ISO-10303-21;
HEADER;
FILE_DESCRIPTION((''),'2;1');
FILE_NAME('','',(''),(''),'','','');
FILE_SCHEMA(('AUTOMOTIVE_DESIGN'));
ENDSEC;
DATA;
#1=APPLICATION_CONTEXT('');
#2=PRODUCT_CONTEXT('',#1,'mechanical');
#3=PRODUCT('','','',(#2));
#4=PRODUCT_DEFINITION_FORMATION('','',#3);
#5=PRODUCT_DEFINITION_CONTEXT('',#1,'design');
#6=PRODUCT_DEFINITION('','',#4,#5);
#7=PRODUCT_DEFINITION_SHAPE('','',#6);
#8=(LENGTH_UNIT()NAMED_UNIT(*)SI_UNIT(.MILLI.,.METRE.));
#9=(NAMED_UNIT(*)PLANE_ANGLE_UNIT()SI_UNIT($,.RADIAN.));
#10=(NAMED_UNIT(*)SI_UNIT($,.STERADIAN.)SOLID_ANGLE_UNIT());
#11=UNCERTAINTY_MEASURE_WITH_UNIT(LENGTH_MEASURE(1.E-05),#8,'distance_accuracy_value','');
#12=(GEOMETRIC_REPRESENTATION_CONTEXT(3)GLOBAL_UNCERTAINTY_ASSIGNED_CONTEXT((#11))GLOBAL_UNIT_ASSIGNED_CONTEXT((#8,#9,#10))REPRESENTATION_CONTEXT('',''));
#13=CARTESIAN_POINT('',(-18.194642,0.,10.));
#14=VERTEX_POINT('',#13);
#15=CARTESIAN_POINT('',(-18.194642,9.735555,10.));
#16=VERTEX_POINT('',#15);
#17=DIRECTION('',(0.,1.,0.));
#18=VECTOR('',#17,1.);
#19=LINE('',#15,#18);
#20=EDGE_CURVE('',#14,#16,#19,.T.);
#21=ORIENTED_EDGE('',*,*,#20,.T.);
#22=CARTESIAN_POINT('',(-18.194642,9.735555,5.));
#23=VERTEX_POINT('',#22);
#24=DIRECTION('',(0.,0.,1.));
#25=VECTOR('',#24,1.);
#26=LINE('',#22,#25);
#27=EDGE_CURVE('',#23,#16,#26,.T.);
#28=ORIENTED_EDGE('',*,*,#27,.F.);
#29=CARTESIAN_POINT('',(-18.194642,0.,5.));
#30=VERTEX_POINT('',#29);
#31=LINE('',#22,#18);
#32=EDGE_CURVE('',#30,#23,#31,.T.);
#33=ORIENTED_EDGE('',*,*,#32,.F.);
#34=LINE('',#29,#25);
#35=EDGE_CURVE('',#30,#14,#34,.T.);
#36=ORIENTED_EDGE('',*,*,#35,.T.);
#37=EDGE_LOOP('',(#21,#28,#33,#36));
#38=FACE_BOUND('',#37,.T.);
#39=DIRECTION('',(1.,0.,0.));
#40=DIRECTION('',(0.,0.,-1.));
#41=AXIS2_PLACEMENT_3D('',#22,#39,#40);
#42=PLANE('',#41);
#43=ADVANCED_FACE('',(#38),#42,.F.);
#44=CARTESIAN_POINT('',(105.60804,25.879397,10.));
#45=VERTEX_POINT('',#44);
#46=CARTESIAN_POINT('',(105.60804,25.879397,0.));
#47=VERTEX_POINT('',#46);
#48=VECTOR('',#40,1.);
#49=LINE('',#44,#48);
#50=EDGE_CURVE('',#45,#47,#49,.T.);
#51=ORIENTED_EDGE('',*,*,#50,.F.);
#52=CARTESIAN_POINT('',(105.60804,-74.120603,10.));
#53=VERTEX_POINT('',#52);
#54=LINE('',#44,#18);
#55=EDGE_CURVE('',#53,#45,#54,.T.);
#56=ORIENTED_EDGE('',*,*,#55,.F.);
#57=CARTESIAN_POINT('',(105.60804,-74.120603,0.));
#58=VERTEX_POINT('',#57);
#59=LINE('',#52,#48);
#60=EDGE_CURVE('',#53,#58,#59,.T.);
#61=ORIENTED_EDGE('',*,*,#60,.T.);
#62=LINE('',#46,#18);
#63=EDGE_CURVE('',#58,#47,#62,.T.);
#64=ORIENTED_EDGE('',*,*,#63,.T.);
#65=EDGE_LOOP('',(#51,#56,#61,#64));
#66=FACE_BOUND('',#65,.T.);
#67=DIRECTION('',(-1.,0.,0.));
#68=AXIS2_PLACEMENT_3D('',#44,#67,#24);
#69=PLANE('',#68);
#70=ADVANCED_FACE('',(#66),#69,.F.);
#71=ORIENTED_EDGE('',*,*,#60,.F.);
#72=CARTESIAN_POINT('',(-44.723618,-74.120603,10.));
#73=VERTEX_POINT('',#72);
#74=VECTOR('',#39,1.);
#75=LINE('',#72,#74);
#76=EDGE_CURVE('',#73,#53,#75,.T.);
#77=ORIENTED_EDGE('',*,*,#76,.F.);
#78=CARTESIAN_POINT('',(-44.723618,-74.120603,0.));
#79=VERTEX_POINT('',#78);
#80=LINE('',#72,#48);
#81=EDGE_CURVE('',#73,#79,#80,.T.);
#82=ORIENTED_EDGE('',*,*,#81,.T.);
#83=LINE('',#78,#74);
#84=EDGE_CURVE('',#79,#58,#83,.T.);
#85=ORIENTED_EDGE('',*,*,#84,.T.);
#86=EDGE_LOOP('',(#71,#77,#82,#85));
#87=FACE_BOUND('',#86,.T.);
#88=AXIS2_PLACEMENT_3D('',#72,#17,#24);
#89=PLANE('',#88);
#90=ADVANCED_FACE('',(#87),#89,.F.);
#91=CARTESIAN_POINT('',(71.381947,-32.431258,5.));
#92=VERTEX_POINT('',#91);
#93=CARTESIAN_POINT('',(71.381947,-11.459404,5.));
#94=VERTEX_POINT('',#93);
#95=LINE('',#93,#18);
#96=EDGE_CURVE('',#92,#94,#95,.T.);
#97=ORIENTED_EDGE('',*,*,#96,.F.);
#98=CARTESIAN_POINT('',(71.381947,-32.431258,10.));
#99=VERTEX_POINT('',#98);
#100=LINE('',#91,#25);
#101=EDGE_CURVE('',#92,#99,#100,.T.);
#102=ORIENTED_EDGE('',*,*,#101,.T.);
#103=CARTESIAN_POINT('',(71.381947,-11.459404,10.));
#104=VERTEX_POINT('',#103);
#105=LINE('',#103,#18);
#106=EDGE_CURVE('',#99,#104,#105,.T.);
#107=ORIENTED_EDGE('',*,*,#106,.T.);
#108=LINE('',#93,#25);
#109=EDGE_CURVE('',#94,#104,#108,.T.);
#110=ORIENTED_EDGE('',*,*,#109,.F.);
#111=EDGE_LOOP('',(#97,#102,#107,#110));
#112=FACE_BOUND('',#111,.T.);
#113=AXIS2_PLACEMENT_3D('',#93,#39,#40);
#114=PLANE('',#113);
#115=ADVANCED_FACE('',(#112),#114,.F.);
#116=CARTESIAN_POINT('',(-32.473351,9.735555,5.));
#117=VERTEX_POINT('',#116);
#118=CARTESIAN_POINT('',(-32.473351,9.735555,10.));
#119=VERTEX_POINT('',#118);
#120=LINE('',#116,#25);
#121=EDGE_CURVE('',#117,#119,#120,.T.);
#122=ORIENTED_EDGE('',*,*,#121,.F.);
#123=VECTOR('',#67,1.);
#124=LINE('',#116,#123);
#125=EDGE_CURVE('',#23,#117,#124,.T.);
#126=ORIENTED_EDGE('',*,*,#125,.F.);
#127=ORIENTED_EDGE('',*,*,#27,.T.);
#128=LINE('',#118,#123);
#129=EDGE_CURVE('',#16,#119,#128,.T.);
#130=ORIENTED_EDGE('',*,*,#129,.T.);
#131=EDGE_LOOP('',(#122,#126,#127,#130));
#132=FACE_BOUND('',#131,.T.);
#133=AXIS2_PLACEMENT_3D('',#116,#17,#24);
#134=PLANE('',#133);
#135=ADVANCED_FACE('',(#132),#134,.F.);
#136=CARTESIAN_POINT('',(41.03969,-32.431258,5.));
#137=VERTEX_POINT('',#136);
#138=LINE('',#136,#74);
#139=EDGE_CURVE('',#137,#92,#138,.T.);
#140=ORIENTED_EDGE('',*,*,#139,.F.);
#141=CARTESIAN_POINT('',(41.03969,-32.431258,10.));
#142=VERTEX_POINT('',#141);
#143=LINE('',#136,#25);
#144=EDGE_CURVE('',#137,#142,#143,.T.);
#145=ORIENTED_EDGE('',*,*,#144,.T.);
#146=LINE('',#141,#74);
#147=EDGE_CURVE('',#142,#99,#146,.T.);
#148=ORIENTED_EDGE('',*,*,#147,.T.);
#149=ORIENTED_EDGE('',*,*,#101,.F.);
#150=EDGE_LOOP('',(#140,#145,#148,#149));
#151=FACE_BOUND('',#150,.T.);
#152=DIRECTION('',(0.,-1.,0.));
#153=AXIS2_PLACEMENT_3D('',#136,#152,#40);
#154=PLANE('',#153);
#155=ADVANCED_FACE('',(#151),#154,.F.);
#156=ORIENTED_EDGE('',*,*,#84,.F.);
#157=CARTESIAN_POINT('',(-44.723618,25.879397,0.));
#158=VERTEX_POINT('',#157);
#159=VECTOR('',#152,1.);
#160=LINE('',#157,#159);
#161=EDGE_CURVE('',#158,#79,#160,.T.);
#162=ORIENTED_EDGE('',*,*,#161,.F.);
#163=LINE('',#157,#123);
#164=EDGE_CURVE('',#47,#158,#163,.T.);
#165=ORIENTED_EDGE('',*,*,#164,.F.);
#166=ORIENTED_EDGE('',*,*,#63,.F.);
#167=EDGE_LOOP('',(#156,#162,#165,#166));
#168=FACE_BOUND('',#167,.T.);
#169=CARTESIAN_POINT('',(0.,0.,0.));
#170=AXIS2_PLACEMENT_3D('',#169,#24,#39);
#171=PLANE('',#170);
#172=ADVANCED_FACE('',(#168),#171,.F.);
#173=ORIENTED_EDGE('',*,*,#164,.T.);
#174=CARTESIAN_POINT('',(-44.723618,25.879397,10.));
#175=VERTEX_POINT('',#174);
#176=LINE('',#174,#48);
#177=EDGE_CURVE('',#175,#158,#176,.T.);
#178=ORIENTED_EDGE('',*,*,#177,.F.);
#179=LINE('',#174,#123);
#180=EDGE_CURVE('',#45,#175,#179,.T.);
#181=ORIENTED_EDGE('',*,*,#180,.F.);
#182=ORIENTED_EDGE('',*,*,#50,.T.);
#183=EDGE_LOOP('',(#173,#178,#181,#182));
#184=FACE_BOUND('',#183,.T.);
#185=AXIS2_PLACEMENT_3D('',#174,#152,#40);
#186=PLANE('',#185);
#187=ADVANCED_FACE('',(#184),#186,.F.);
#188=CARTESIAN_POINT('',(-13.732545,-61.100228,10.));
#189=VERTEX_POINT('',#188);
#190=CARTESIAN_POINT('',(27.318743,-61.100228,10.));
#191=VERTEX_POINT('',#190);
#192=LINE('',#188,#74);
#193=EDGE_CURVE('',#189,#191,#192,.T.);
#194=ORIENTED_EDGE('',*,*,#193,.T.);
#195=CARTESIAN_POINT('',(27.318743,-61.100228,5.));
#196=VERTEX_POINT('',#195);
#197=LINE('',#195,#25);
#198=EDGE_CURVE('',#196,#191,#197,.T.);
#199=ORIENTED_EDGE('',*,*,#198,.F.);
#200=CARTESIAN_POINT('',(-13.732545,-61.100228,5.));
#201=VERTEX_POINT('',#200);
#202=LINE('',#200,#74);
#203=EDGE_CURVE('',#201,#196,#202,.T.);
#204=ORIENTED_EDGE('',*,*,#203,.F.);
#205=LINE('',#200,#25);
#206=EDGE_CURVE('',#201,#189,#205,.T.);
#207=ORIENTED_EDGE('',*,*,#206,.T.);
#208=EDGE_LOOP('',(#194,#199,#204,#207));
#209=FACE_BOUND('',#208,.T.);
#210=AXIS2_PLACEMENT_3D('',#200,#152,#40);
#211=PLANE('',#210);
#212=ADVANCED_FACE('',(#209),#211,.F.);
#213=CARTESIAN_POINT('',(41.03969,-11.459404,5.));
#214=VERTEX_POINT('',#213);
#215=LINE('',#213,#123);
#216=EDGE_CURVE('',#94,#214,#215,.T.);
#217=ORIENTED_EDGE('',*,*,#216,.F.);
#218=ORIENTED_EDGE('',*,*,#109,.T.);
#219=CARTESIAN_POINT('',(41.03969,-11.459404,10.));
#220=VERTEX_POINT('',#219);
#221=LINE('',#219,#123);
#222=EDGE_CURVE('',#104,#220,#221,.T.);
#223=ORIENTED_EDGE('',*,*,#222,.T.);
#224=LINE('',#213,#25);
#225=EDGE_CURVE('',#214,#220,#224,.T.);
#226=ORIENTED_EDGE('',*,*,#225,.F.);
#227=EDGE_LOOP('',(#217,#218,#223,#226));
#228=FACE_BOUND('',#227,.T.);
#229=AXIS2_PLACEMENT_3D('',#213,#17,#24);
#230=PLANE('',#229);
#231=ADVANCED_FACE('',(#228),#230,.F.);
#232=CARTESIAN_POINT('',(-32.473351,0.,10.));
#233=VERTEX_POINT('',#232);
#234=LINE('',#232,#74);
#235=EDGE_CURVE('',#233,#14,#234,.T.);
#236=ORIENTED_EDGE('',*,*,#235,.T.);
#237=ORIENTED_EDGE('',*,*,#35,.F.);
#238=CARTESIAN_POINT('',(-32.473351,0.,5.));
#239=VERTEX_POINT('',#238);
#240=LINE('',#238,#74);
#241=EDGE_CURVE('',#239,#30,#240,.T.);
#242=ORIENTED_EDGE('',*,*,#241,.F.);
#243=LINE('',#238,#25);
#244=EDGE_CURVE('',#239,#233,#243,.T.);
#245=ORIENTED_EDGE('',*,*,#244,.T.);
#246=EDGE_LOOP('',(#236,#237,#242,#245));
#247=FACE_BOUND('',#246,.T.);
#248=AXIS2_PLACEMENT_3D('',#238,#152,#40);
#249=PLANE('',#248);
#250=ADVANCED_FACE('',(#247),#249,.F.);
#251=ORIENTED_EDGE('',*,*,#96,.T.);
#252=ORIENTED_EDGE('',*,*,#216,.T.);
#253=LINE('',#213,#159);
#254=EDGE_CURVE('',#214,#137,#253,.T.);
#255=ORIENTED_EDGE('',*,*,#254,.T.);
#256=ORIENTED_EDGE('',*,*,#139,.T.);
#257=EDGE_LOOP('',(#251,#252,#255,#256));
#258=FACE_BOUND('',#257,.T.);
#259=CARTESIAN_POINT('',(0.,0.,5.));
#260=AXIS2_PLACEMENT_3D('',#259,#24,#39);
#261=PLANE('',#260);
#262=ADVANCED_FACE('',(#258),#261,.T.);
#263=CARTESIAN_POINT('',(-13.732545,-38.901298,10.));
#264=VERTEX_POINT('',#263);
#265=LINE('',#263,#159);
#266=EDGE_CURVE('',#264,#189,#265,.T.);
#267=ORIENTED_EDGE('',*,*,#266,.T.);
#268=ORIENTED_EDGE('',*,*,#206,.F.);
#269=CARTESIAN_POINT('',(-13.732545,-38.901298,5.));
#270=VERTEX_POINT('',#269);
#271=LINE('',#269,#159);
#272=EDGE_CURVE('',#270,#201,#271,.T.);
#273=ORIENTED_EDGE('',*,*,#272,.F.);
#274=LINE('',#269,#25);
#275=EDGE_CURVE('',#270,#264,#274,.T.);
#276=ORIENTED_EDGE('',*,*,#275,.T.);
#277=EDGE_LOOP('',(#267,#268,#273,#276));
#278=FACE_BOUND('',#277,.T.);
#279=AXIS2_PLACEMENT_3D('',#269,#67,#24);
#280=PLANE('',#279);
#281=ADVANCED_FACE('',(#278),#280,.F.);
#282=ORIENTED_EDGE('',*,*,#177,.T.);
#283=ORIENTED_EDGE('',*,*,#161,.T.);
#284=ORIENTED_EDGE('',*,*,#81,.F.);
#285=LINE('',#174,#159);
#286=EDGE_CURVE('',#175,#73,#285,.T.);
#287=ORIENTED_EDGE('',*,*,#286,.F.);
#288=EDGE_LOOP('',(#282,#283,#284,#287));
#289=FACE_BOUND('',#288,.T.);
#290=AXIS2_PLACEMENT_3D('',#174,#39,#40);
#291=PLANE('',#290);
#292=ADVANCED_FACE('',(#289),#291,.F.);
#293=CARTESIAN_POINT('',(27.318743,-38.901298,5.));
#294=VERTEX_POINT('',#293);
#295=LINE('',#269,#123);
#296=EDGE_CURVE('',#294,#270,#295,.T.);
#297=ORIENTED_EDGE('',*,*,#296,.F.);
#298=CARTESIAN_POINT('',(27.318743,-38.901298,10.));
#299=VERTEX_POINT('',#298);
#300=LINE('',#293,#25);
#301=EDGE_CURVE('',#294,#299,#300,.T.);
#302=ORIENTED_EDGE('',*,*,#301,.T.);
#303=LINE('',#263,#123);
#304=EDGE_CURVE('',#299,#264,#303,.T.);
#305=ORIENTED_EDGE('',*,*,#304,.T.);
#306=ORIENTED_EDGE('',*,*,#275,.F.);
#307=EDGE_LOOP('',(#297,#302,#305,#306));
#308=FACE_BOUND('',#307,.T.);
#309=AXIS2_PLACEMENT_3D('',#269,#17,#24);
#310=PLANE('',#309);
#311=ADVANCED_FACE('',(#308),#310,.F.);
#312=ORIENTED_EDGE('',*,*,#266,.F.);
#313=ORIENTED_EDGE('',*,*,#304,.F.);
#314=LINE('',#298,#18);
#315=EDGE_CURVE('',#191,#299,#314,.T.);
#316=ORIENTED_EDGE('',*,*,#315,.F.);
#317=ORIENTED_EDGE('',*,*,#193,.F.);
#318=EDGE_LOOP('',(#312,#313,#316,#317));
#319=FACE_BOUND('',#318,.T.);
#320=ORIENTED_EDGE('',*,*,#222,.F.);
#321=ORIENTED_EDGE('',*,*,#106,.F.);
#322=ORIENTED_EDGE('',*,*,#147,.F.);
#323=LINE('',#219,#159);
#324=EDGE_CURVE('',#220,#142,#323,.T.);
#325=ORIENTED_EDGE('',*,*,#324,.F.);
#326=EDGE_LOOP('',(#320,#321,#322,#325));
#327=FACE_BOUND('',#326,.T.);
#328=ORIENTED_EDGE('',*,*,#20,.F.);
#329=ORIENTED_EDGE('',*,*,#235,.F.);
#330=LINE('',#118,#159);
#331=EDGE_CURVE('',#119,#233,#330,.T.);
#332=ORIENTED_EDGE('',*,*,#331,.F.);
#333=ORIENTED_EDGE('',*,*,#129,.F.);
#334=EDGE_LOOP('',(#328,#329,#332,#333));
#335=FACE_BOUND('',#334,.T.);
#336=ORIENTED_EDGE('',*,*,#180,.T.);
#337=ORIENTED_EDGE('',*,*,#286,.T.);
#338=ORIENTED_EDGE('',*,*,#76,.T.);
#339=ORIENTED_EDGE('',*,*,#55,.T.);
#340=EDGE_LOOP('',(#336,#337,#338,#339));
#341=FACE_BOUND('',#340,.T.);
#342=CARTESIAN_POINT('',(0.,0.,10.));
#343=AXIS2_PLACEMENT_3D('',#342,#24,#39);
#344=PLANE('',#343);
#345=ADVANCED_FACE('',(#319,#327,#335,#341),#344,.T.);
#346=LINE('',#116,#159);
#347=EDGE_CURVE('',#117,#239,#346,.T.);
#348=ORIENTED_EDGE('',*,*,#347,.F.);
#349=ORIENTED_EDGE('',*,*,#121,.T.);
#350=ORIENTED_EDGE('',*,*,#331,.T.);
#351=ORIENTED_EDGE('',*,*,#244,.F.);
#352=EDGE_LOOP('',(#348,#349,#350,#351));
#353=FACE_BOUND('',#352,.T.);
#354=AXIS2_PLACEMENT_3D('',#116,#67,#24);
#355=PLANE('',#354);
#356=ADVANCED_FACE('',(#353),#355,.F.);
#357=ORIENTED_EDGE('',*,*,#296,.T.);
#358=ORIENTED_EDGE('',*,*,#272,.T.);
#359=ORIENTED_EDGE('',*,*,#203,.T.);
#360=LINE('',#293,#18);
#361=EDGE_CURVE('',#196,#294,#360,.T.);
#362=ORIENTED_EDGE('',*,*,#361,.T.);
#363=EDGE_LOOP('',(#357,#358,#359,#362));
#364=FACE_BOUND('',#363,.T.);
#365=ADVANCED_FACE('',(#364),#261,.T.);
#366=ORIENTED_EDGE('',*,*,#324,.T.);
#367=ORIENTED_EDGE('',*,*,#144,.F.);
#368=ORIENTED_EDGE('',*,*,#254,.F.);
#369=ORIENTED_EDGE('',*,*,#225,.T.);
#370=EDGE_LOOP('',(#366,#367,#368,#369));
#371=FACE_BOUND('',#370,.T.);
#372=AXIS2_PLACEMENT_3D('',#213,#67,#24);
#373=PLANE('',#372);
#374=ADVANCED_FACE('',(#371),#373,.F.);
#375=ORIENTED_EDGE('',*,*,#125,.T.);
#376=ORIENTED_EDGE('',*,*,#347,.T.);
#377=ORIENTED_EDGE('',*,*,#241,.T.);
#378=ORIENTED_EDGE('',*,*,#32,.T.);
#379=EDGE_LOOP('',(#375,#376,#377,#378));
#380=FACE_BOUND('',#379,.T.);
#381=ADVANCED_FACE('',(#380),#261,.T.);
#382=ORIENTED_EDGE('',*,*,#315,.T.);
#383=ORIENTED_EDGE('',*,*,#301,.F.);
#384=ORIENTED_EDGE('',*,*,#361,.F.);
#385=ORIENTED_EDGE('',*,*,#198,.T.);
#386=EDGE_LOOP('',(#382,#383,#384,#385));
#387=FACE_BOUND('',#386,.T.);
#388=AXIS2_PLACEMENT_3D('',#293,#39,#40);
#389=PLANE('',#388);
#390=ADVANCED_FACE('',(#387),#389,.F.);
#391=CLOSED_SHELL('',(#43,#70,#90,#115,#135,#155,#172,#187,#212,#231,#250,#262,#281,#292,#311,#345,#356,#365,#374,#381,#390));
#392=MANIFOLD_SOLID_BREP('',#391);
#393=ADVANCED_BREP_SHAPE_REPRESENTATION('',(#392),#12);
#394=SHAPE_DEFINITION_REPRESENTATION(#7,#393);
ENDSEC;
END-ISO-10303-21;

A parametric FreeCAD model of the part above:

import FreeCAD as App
import Part
import Sketcher

V = App.Vector


def add_polygon(sketch, points):
    """Adds a closed chain of lines whose ends are joined by coincident constraints."""
    first, n = sketch.GeometryCount, len(points)
    for a, b in zip(points, points[1:] + points[:1]):
        sketch.addGeometry(Part.LineSegment(App.Vector(*a, 0), App.Vector(*b, 0)), False)
    for i in range(n):
        sketch.addConstraint(Sketcher.Constraint("Coincident", first + i, 2, first + (i + 1) % n, 1))

doc = App.newDocument("Part")
body = doc.addObject("PartDesign::Body", "Body")

# Sketch on XY plane
sketch1 = body.newObject("Sketcher::SketchObject", "Sketch")
sketch1.AttachmentSupport = (doc.getObject("XY_Plane"), [""])
sketch1.MapMode = "FlatFace"
add_polygon(sketch1, [(-45, 26), (-45, -74), (106, -74), (106, 26)])  # lines 0-3
sketch1.addConstraint([
    Sketcher.Constraint("Vertical", 0),
    Sketcher.Constraint("Horizontal", 1),
    Sketcher.Constraint("Vertical", 2),
    Sketcher.Constraint("Horizontal", 3),
    Sketcher.Constraint("DistanceY", 0, 2, 0, 1, 100.0),
    Sketcher.Constraint("DistanceX", 1, 1, 1, 2, 150.331658),
    Sketcher.Constraint("DistanceX", 0, 2, -1, 1, 44.723618),
    Sketcher.Constraint("DistanceY", 0, 2, -1, 1, 74.120603),
])
pad1 = body.newObject("PartDesign::Pad", "Pad")
pad1.Profile = sketch1
pad1.Length = 10

# Sketch on XY plane
sketch2 = body.newObject("Sketcher::SketchObject", "Sketch001")
sketch2.AttachmentSupport = (doc.getObject("XY_Plane"), [""])
sketch2.MapMode = "FlatFace"
sketch2.AttachmentOffset = App.Placement(V(0, 0, 10), App.Rotation())
add_polygon(sketch2, [(-32, 10), (-32, 0), (-18, 0), (-18, 10)])  # lines 0-3
add_polygon(sketch2, [(41, -11), (41, -32), (71, -32), (71, -11)])  # lines 4-7
add_polygon(sketch2, [(-14, -39), (-14, -61), (27, -61), (27, -39)])  # lines 8-11
sketch2.addConstraint([
    Sketcher.Constraint("Vertical", 0),
    Sketcher.Constraint("Horizontal", 1),
    Sketcher.Constraint("Vertical", 2),
    Sketcher.Constraint("Horizontal", 3),
    Sketcher.Constraint("Vertical", 4),
    Sketcher.Constraint("Horizontal", 5),
    Sketcher.Constraint("Vertical", 6),
    Sketcher.Constraint("Horizontal", 7),
    Sketcher.Constraint("Vertical", 8),
    Sketcher.Constraint("Horizontal", 9),
    Sketcher.Constraint("Vertical", 10),
    Sketcher.Constraint("Horizontal", 11),
    Sketcher.Constraint("PointOnObject", 0, 2, -1),
    Sketcher.Constraint("DistanceX", 1, 1, 1, 2, 14.278709),
    Sketcher.Constraint("DistanceX", 9, 1, 9, 2, 41.051288),
    Sketcher.Constraint("DistanceY", 8, 2, 8, 1, 22.19893),
    Sketcher.Constraint("DistanceX", 5, 1, 5, 2, 30.342257),
    Sketcher.Constraint("DistanceY", 0, 2, 0, 1, 9.735555),
    Sketcher.Constraint("DistanceY", 4, 2, 4, 1, 20.971854),
    Sketcher.Constraint("DistanceX", 0, 2, -1, 1, 32.473351),
    Sketcher.Constraint("DistanceX", -1, 1, 4, 2, 41.03969),
    Sketcher.Constraint("DistanceY", 8, 2, -1, 1, 61.100228),
    Sketcher.Constraint("DistanceY", 6, 2, 2, 2, 21.194959),
    Sketcher.Constraint("DistanceX", 8, 2, -1, 1, 13.732545),
])
pocket1 = body.newObject("PartDesign::Pocket", "Pocket")
pocket1.Profile = sketch2
pocket1.Length = 5

doc.recompute()
